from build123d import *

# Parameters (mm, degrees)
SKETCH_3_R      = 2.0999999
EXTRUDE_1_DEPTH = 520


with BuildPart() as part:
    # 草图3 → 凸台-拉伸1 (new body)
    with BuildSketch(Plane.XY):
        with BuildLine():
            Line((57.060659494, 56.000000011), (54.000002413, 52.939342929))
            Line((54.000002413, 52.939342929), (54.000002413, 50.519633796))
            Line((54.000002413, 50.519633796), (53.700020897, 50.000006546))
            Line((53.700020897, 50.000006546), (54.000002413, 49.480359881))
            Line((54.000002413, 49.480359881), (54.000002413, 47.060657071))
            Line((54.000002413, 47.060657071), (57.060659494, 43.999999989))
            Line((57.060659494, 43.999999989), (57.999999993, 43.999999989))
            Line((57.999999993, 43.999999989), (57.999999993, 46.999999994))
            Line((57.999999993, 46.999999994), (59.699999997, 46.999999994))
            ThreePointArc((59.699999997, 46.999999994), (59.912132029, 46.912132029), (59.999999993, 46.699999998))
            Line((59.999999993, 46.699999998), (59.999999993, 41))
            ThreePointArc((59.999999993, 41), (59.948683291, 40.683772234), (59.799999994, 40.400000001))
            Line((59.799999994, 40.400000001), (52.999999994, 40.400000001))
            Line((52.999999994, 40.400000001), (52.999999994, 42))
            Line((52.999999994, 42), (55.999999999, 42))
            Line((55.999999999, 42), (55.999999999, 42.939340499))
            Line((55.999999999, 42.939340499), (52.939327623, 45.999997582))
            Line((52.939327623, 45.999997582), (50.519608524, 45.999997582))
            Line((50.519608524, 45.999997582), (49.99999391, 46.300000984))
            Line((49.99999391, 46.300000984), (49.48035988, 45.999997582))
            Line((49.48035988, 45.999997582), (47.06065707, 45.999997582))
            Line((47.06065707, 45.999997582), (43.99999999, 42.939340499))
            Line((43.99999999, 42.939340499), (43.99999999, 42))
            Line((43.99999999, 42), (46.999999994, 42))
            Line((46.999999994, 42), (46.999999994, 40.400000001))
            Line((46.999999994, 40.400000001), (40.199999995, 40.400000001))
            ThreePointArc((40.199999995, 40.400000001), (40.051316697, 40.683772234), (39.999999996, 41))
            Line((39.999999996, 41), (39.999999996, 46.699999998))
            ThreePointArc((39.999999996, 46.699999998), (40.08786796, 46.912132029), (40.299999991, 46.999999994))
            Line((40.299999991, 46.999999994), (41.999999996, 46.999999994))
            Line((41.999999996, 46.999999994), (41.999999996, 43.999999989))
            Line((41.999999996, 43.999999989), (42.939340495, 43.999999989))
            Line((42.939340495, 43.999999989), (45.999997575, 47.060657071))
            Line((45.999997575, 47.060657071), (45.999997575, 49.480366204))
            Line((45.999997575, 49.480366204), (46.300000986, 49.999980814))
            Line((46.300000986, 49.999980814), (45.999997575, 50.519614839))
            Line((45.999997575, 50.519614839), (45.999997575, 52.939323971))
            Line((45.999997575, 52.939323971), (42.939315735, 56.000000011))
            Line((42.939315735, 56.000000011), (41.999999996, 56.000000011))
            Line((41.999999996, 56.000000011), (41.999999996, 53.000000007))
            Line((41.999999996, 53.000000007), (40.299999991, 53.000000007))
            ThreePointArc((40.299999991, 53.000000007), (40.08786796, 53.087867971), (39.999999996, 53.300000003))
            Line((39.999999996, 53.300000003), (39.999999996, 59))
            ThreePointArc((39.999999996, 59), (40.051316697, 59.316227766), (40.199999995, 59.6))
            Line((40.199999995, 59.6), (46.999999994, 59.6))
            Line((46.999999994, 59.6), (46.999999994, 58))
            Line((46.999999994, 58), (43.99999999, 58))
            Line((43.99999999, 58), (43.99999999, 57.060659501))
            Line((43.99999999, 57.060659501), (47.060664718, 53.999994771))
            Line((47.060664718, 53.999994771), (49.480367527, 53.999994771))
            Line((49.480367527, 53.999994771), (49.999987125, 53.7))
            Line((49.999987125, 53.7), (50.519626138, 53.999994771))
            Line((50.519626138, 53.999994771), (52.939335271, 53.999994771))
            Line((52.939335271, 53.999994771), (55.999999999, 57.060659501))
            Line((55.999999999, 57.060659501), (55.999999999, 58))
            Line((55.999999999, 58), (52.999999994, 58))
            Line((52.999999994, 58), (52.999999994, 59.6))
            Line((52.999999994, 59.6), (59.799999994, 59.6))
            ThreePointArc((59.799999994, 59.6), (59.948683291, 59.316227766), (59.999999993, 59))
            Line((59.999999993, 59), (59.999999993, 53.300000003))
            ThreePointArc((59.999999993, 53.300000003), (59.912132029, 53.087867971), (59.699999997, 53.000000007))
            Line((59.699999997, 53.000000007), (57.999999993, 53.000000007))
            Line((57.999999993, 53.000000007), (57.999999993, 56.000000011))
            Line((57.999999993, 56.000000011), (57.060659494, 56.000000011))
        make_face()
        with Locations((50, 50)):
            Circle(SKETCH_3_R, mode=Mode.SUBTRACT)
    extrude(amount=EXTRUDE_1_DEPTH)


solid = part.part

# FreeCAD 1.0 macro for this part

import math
import FreeCAD as App
import Part
import Sketcher
from FreeCAD import Vector

doc = App.newDocument("Part")
body = doc.addObject("PartDesign::Body", "Body")

# Sketch on XY plane
sketch1 = body.newObject("Sketcher::SketchObject", "Sketch")
sketch1.AttachmentSupport = (doc.getObject("XY_Plane"), [""])
sketch1.MapMode = "FlatFace"
sketch1.addGeometry(Part.LineSegment(Vector(54.000002, 52.939343, 0), Vector(57.060659, 56, 0)), False)
sketch1.addGeometry(Part.LineSegment(Vector(57.060659, 56, 0), Vector(58, 56, 0)), False)
sketch1.addGeometry(Part.LineSegment(Vector(58, 56, 0), Vector(58, 53, 0)), False)
sketch1.addGeometry(Part.LineSegment(Vector(58, 53, 0), Vector(59.7, 53, 0)), False)
sketch1.addGeometry(Part.ArcOfCircle(Part.Circle(Vector(59.7, 53.3, 0), Vector(0, 0, 1), 0.3), math.radians(-90), math.radians(0)), False)
sketch1.addGeometry(Part.LineSegment(Vector(60, 53.3, 0), Vector(60, 59, 0)), False)
sketch1.addGeometry(Part.ArcOfCircle(Part.Circle(Vector(59, 59, 0), Vector(0, 0, 1), 1), math.radians(0), math.radians(36.869897)), False)
sketch1.addGeometry(Part.LineSegment(Vector(59.8, 59.6, 0), Vector(53, 59.6, 0)), False)
sketch1.addGeometry(Part.LineSegment(Vector(53, 59.6, 0), Vector(53, 58, 0)), False)
sketch1.addGeometry(Part.LineSegment(Vector(53, 58, 0), Vector(56, 58, 0)), False)
sketch1.addGeometry(Part.LineSegment(Vector(56, 58, 0), Vector(56, 57.06066, 0)), False)
sketch1.addGeometry(Part.LineSegment(Vector(56, 57.06066, 0), Vector(52.939335, 53.999995, 0)), False)
sketch1.addGeometry(Part.LineSegment(Vector(52.939335, 53.999995, 0), Vector(50.519626, 53.999995, 0)), False)
sketch1.addGeometry(Part.LineSegment(Vector(50.519626, 53.999995, 0), Vector(49.999987, 53.7, 0)), False)
sketch1.addGeometry(Part.LineSegment(Vector(49.999987, 53.7, 0), Vector(49.480368, 53.999995, 0)), False)
sketch1.addGeometry(Part.LineSegment(Vector(49.480368, 53.999995, 0), Vector(47.060665, 53.999995, 0)), False)
sketch1.addGeometry(Part.LineSegment(Vector(47.060665, 53.999995, 0), Vector(44, 57.06066, 0)), False)
sketch1.addGeometry(Part.LineSegment(Vector(44, 57.06066, 0), Vector(44, 58, 0)), False)
sketch1.addGeometry(Part.LineSegment(Vector(44, 58, 0), Vector(47, 58, 0)), False)
sketch1.addGeometry(Part.LineSegment(Vector(47, 58, 0), Vector(47, 59.6, 0)), False)
sketch1.addGeometry(Part.LineSegment(Vector(47, 59.6, 0), Vector(40.2, 59.6, 0)), False)
sketch1.addGeometry(Part.ArcOfCircle(Part.Circle(Vector(41, 59, 0), Vector(0, 0, 1), 1), math.radians(143.130102), math.radians(180)), False)
sketch1.addGeometry(Part.LineSegment(Vector(40, 59, 0), Vector(40, 53.3, 0)), False)
sketch1.addGeometry(Part.ArcOfCircle(Part.Circle(Vector(40.3, 53.3, 0), Vector(0, 0, 1), 0.3), math.radians(180), math.radians(270)), False)
sketch1.addGeometry(Part.LineSegment(Vector(40.3, 53, 0), Vector(42, 53, 0)), False)
sketch1.addGeometry(Part.LineSegment(Vector(42, 53, 0), Vector(42, 56, 0)), False)
sketch1.addGeometry(Part.LineSegment(Vector(42, 56, 0), Vector(42.939316, 56, 0)), False)
sketch1.addGeometry(Part.LineSegment(Vector(42.939316, 56, 0), Vector(45.999998, 52.939324, 0)), False)
sketch1.addGeometry(Part.LineSegment(Vector(45.999998, 52.939324, 0), Vector(45.999998, 50.519615, 0)), False)
sketch1.addGeometry(Part.LineSegment(Vector(45.999998, 50.519615, 0), Vector(46.300001, 49.999981, 0)), False)
sketch1.addGeometry(Part.LineSegment(Vector(46.300001, 49.999981, 0), Vector(45.999998, 49.480366, 0)), False)
sketch1.addGeometry(Part.LineSegment(Vector(45.999998, 49.480366, 0), Vector(45.999998, 47.060657, 0)), False)
sketch1.addGeometry(Part.LineSegment(Vector(45.999998, 47.060657, 0), Vector(42.93934, 44, 0)), False)
sketch1.addGeometry(Part.LineSegment(Vector(42.93934, 44, 0), Vector(42, 44, 0)), False)
sketch1.addGeometry(Part.LineSegment(Vector(42, 44, 0), Vector(42, 47, 0)), False)
sketch1.addGeometry(Part.LineSegment(Vector(42, 47, 0), Vector(40.3, 47, 0)), False)
sketch1.addGeometry(Part.ArcOfCircle(Part.Circle(Vector(40.3, 46.7, 0), Vector(0, 0, 1), 0.3), math.radians(90), math.radians(180)), False)
sketch1.addGeometry(Part.LineSegment(Vector(40, 46.7, 0), Vector(40, 41, 0)), False)
sketch1.addGeometry(Part.ArcOfCircle(Part.Circle(Vector(41, 41, 0), Vector(0, 0, 1), 1), math.radians(180), math.radians(216.869898)), False)
sketch1.addGeometry(Part.LineSegment(Vector(40.2, 40.4, 0), Vector(47, 40.4, 0)), False)
sketch1.addGeometry(Part.LineSegment(Vector(47, 40.4, 0), Vector(47, 42, 0)), False)
sketch1.addGeometry(Part.LineSegment(Vector(47, 42, 0), Vector(44, 42, 0)), False)
sketch1.addGeometry(Part.LineSegment(Vector(44, 42, 0), Vector(44, 42.93934, 0)), False)
sketch1.addGeometry(Part.LineSegment(Vector(44, 42.93934, 0), Vector(47.060657, 45.999998, 0)), False)
sketch1.addGeometry(Part.LineSegment(Vector(47.060657, 45.999998, 0), Vector(49.48036, 45.999998, 0)), False)
sketch1.addGeometry(Part.LineSegment(Vector(49.48036, 45.999998, 0), Vector(49.999994, 46.300001, 0)), False)
sketch1.addGeometry(Part.LineSegment(Vector(49.999994, 46.300001, 0), Vector(50.519609, 45.999998, 0)), False)
sketch1.addGeometry(Part.LineSegment(Vector(50.519609, 45.999998, 0), Vector(52.939328, 45.999998, 0)), False)
sketch1.addGeometry(Part.LineSegment(Vector(52.939328, 45.999998, 0), Vector(56, 42.93934, 0)), False)
sketch1.addGeometry(Part.LineSegment(Vector(56, 42.93934, 0), Vector(56, 42, 0)), False)
sketch1.addGeometry(Part.LineSegment(Vector(56, 42, 0), Vector(53, 42, 0)), False)
sketch1.addGeometry(Part.LineSegment(Vector(53, 42, 0), Vector(53, 40.4, 0)), False)
sketch1.addGeometry(Part.LineSegment(Vector(53, 40.4, 0), Vector(59.8, 40.4, 0)), False)
sketch1.addGeometry(Part.ArcOfCircle(Part.Circle(Vector(59, 41, 0), Vector(0, 0, 1), 1), math.radians(-36.869898), math.radians(0)), False)
sketch1.addGeometry(Part.LineSegment(Vector(60, 41, 0), Vector(60, 46.7, 0)), False)
sketch1.addGeometry(Part.ArcOfCircle(Part.Circle(Vector(59.7, 46.7, 0), Vector(0, 0, 1), 0.3), math.radians(0), math.radians(90)), False)
sketch1.addGeometry(Part.LineSegment(Vector(59.7, 47, 0), Vector(58, 47, 0)), False)
sketch1.addGeometry(Part.LineSegment(Vector(58, 47, 0), Vector(58, 44, 0)), False)
sketch1.addGeometry(Part.LineSegment(Vector(58, 44, 0), Vector(57.060659, 44, 0)), False)
sketch1.addGeometry(Part.LineSegment(Vector(57.060659, 44, 0), Vector(54.000002, 47.060657, 0)), False)
sketch1.addGeometry(Part.LineSegment(Vector(54.000002, 47.060657, 0), Vector(54.000002, 49.48036, 0)), False)
sketch1.addGeometry(Part.LineSegment(Vector(54.000002, 49.48036, 0), Vector(53.700021, 50.000007, 0)), False)
sketch1.addGeometry(Part.LineSegment(Vector(53.700021, 50.000007, 0), Vector(54.000002, 50.519634, 0)), False)
sketch1.addGeometry(Part.LineSegment(Vector(54.000002, 50.519634, 0), Vector(54.000002, 52.939343, 0)), False)
sketch1.addGeometry(Part.Circle(Vector(50, 50, 0), Vector(0, 0, 1), 2.1), False)
sketch1.addConstraint(Sketcher.Constraint("Coincident", 0, 2, 1, 1))
sketch1.addConstraint(Sketcher.Constraint("Coincident", 1, 2, 2, 1))
sketch1.addConstraint(Sketcher.Constraint("Coincident", 2, 2, 3, 1))
sketch1.addConstraint(Sketcher.Constraint("Coincident", 3, 2, 4, 1))
sketch1.addConstraint(Sketcher.Constraint("Coincident", 4, 2, 5, 1))
sketch1.addConstraint(Sketcher.Constraint("Coincident", 5, 2, 6, 1))
sketch1.addConstraint(Sketcher.Constraint("Coincident", 6, 2, 7, 1))
sketch1.addConstraint(Sketcher.Constraint("Coincident", 7, 2, 8, 1))
sketch1.addConstraint(Sketcher.Constraint("Coincident", 8, 2, 9, 1))
sketch1.addConstraint(Sketcher.Constraint("Coincident", 9, 2, 10, 1))
sketch1.addConstraint(Sketcher.Constraint("Coincident", 10, 2, 11, 1))
sketch1.addConstraint(Sketcher.Constraint("Coincident", 11, 2, 12, 1))
sketch1.addConstraint(Sketcher.Constraint("Coincident", 12, 2, 13, 1))
sketch1.addConstraint(Sketcher.Constraint("Coincident", 13, 2, 14, 1))
sketch1.addConstraint(Sketcher.Constraint("Coincident", 14, 2, 15, 1))
sketch1.addConstraint(Sketcher.Constraint("Coincident", 15, 2, 16, 1))
sketch1.addConstraint(Sketcher.Constraint("Coincident", 16, 2, 17, 1))
sketch1.addConstraint(Sketcher.Constraint("Coincident", 17, 2, 18, 1))
sketch1.addConstraint(Sketcher.Constraint("Coincident", 18, 2, 19, 1))
sketch1.addConstraint(Sketcher.Constraint("Coincident", 19, 2, 20, 1))
sketch1.addConstraint(Sketcher.Constraint("Coincident", 20, 2, 21, 1))
sketch1.addConstraint(Sketcher.Constraint("Coincident", 21, 2, 22, 1))
sketch1.addConstraint(Sketcher.Constraint("Coincident", 22, 2, 23, 1))
sketch1.addConstraint(Sketcher.Constraint("Coincident", 23, 2, 24, 1))
sketch1.addConstraint(Sketcher.Constraint("Coincident", 24, 2, 25, 1))
sketch1.addConstraint(Sketcher.Constraint("Coincident", 25, 2, 26, 1))
sketch1.addConstraint(Sketcher.Constraint("Coincident", 26, 2, 27, 1))
sketch1.addConstraint(Sketcher.Constraint("Coincident", 27, 2, 28, 1))
sketch1.addConstraint(Sketcher.Constraint("Coincident", 28, 2, 29, 1))
sketch1.addConstraint(Sketcher.Constraint("Coincident", 29, 2, 30, 1))
sketch1.addConstraint(Sketcher.Constraint("Coincident", 30, 2, 31, 1))
sketch1.addConstraint(Sketcher.Constraint("Coincident", 31, 2, 32, 1))
sketch1.addConstraint(Sketcher.Constraint("Coincident", 32, 2, 33, 1))
sketch1.addConstraint(Sketcher.Constraint("Coincident", 33, 2, 34, 1))
sketch1.addConstraint(Sketcher.Constraint("Coincident", 34, 2, 35, 1))
sketch1.addConstraint(Sketcher.Constraint("Coincident", 35, 2, 36, 1))
sketch1.addConstraint(Sketcher.Constraint("Coincident", 36, 2, 37, 1))
sketch1.addConstraint(Sketcher.Constraint("Coincident", 37, 2, 38, 1))
sketch1.addConstraint(Sketcher.Constraint("Coincident", 38, 2, 39, 1))
sketch1.addConstraint(Sketcher.Constraint("Coincident", 39, 2, 40, 1))
sketch1.addConstraint(Sketcher.Constraint("Coincident", 40, 2, 41, 1))
sketch1.addConstraint(Sketcher.Constraint("Coincident", 41, 2, 42, 1))
sketch1.addConstraint(Sketcher.Constraint("Coincident", 42, 2, 43, 1))
sketch1.addConstraint(Sketcher.Constraint("Coincident", 43, 2, 44, 1))
sketch1.addConstraint(Sketcher.Constraint("Coincident", 44, 2, 45, 1))
sketch1.addConstraint(Sketcher.Constraint("Coincident", 45, 2, 46, 1))
sketch1.addConstraint(Sketcher.Constraint("Coincident", 46, 2, 47, 1))
sketch1.addConstraint(Sketcher.Constraint("Coincident", 47, 2, 48, 1))
sketch1.addConstraint(Sketcher.Constraint("Coincident", 48, 2, 49, 1))
sketch1.addConstraint(Sketcher.Constraint("Coincident", 49, 2, 50, 1))
sketch1.addConstraint(Sketcher.Constraint("Coincident", 50, 2, 51, 1))
sketch1.addConstraint(Sketcher.Constraint("Coincident", 51, 2, 52, 1))
sketch1.addConstraint(Sketcher.Constraint("Coincident", 52, 2, 53, 1))
sketch1.addConstraint(Sketcher.Constraint("Coincident", 53, 2, 54, 1))
sketch1.addConstraint(Sketcher.Constraint("Coincident", 54, 2, 55, 1))
sketch1.addConstraint(Sketcher.Constraint("Coincident", 55, 2, 56, 1))
sketch1.addConstraint(Sketcher.Constraint("Coincident", 56, 2, 57, 1))
sketch1.addConstraint(Sketcher.Constraint("Coincident", 57, 2, 58, 1))
sketch1.addConstraint(Sketcher.Constraint("Coincident", 58, 2, 59, 1))
sketch1.addConstraint(Sketcher.Constraint("Coincident", 59, 2, 60, 1))
sketch1.addConstraint(Sketcher.Constraint("Coincident", 60, 2, 61, 1))
sketch1.addConstraint(Sketcher.Constraint("Coincident", 61, 2, 62, 1))
sketch1.addConstraint(Sketcher.Constraint("Coincident", 62, 2, 63, 1))
sketch1.addConstraint(Sketcher.Constraint("Coincident", 63, 2, 0, 1))
sketch1.addConstraint(Sketcher.Constraint("Horizontal", 1))
sketch1.addConstraint(Sketcher.Constraint("Vertical", 2))
sketch1.addConstraint(Sketcher.Constraint("Horizontal", 3))
sketch1.addConstraint(Sketcher.Constraint("Vertical", 5))
sketch1.addConstraint(Sketcher.Constraint("Horizontal", 7))
sketch1.addConstraint(Sketcher.Constraint("Vertical", 8))
sketch1.addConstraint(Sketcher.Constraint("Horizontal", 9))
sketch1.addConstraint(Sketcher.Constraint("Vertical", 10))
sketch1.addConstraint(Sketcher.Constraint("Horizontal", 12))
sketch1.addConstraint(Sketcher.Constraint("Horizontal", 15))
sketch1.addConstraint(Sketcher.Constraint("Vertical", 17))
sketch1.addConstraint(Sketcher.Constraint("Horizontal", 18))
sketch1.addConstraint(Sketcher.Constraint("Vertical", 19))
sketch1.addConstraint(Sketcher.Constraint("Horizontal", 20))
sketch1.addConstraint(Sketcher.Constraint("Vertical", 22))
sketch1.addConstraint(Sketcher.Constraint("Horizontal", 24))
sketch1.addConstraint(Sketcher.Constraint("Vertical", 25))
sketch1.addConstraint(Sketcher.Constraint("Horizontal", 26))
sketch1.addConstraint(Sketcher.Constraint("Vertical", 28))
sketch1.addConstraint(Sketcher.Constraint("Vertical", 31))
sketch1.addConstraint(Sketcher.Constraint("Horizontal", 33))
sketch1.addConstraint(Sketcher.Constraint("Vertical", 34))
sketch1.addConstraint(Sketcher.Constraint("Horizontal", 35))
sketch1.addConstraint(Sketcher.Constraint("Vertical", 37))
sketch1.addConstraint(Sketcher.Constraint("Horizontal", 39))
sketch1.addConstraint(Sketcher.Constraint("Vertical", 40))
sketch1.addConstraint(Sketcher.Constraint("Horizontal", 41))
sketch1.addConstraint(Sketcher.Constraint("Vertical", 42))
sketch1.addConstraint(Sketcher.Constraint("Horizontal", 44))
sketch1.addConstraint(Sketcher.Constraint("Horizontal", 47))
sketch1.addConstraint(Sketcher.Constraint("Vertical", 49))
sketch1.addConstraint(Sketcher.Constraint("Horizontal", 50))
sketch1.addConstraint(Sketcher.Constraint("Vertical", 51))
sketch1.addConstraint(Sketcher.Constraint("Horizontal", 52))
sketch1.addConstraint(Sketcher.Constraint("Vertical", 54))
sketch1.addConstraint(Sketcher.Constraint("Horizontal", 56))
sketch1.addConstraint(Sketcher.Constraint("Vertical", 57))
sketch1.addConstraint(Sketcher.Constraint("Horizontal", 58))
sketch1.addConstraint(Sketcher.Constraint("Vertical", 60))
sketch1.addConstraint(Sketcher.Constraint("Vertical", 63))
sketch1.addConstraint(Sketcher.Constraint("Radius", 6, 1.0))
sketch1.addConstraint(Sketcher.Constraint("Radius", 21, 1.0))
sketch1.addConstraint(Sketcher.Constraint("Radius", 38, 1.0))
sketch1.addConstraint(Sketcher.Constraint("Radius", 53, 1.0))
sketch1.addConstraint(Sketcher.Constraint("Diameter", 64, 4.2))
sketch1.addConstraint(Sketcher.Constraint("Radius", 4, 0.3))
sketch1.addConstraint(Sketcher.Constraint("Radius", 23, 0.3))
sketch1.addConstraint(Sketcher.Constraint("Radius", 36, 0.3))
sketch1.addConstraint(Sketcher.Constraint("Radius", 55, 0.3))
sketch1.addConstraint(Sketcher.Constraint("DistanceX", 9, 1, 9, 2, 3.0))
sketch1.addConstraint(Sketcher.Constraint("DistanceX", 18, 1, 18, 2, 3.0))
sketch1.addConstraint(Sketcher.Constraint("DistanceX", 41, 2, 41, 1, 3.0))
sketch1.addConstraint(Sketcher.Constraint("DistanceX", 50, 2, 50, 1, 3.0))
sketch1.addConstraint(Sketcher.Constraint("DistanceY", 2, 2, 2, 1, 3.0))
sketch1.addConstraint(Sketcher.Constraint("DistanceY", 25, 1, 25, 2, 3.0))
sketch1.addConstraint(Sketcher.Constraint("DistanceY", 34, 1, 34, 2, 3.0))
sketch1.addConstraint(Sketcher.Constraint("DistanceY", 57, 2, 57, 1, 3.0))
sketch1.addConstraint(Sketcher.Constraint("DistanceX", 3, 1, 3, 2, 1.7))
sketch1.addConstraint(Sketcher.Constraint("DistanceX", 7, 2, 7, 1, 6.8))
sketch1.addConstraint(Sketcher.Constraint("DistanceX", 20, 2, 20, 1, 6.8))
sketch1.addConstraint(Sketcher.Constraint("DistanceX", 24, 1, 24, 2, 1.7))
sketch1.addConstraint(Sketcher.Constraint("DistanceX", 35, 2, 35, 1, 1.7))
sketch1.addConstraint(Sketcher.Constraint("DistanceX", 39, 1, 39, 2, 6.8))
sketch1.addConstraint(Sketcher.Constraint("DistanceX", 52, 1, 52, 2, 6.8))
sketch1.addConstraint(Sketcher.Constraint("DistanceX", 56, 2, 56, 1, 1.7))
sketch1.addConstraint(Sketcher.Constraint("DistanceY", 5, 1, 5, 2, 5.7))
sketch1.addConstraint(Sketcher.Constraint("DistanceY", 8, 2, 8, 1, 1.6))
sketch1.addConstraint(Sketcher.Constraint("DistanceY", 19, 1, 19, 2, 1.6))
sketch1.addConstraint(Sketcher.Constraint("DistanceY", 22, 2, 22, 1, 5.7))
sketch1.addConstraint(Sketcher.Constraint("DistanceY", 37, 2, 37, 1, 5.7))
sketch1.addConstraint(Sketcher.Constraint("DistanceY", 40, 1, 40, 2, 1.6))
sketch1.addConstraint(Sketcher.Constraint("DistanceY", 51, 2, 51, 1, 1.6))
sketch1.addConstraint(Sketcher.Constraint("DistanceY", 54, 1, 54, 2, 5.7))
sketch1.addConstraint(Sketcher.Constraint("DistanceX", -1, 1, 6, 3, 59.0))
sketch1.addConstraint(Sketcher.Constraint("DistanceY", -1, 1, 6, 3, 59.0))
sketch1.addConstraint(Sketcher.Constraint("DistanceX", -1, 1, 21, 3, 41.0))
sketch1.addConstraint(Sketcher.Constraint("DistanceY", -1, 1, 21, 3, 59.0))
sketch1.addConstraint(Sketcher.Constraint("DistanceX", -1, 1, 38, 3, 41.0))
sketch1.addConstraint(Sketcher.Constraint("DistanceY", -1, 1, 38, 3, 41.0))
sketch1.addConstraint(Sketcher.Constraint("DistanceX", -1, 1, 53, 3, 59.0))
sketch1.addConstraint(Sketcher.Constraint("DistanceY", -1, 1, 53, 3, 41.0))
sketch1.addConstraint(Sketcher.Constraint("DistanceX", -1, 1, 64, 3, 50.0))
sketch1.addConstraint(Sketcher.Constraint("DistanceY", -1, 1, 64, 3, 50.0))
sketch1.addConstraint(Sketcher.Constraint("DistanceY", -1, 1, 0, 2, 56.0))
sketch1.addConstraint(Sketcher.Constraint("DistanceX", -1, 1, 1, 2, 58.0))
sketch1.addConstraint(Sketcher.Constraint("DistanceY", -1, 1, 5, 2, 59.0))
sketch1.addConstraint(Sketcher.Constraint("DistanceX", -1, 1, 7, 2, 53.0))
sketch1.addConstraint(Sketcher.Constraint("DistanceX", -1, 1, 16, 2, 44.0))
sketch1.addConstraint(Sketcher.Constraint("DistanceY", -1, 1, 21, 2, 59.0))
sketch1.addConstraint(Sketcher.Constraint("DistanceY", -1, 1, 23, 2, 53.0))
sketch1.addConstraint(Sketcher.Constraint("DistanceX", -1, 1, 24, 2, 42.0))
sketch1.addConstraint(Sketcher.Constraint("DistanceY", -1, 1, 32, 2, 44.0))
sketch1.addConstraint(Sketcher.Constraint("DistanceX", -1, 1, 33, 2, 42.0))
sketch1.addConstraint(Sketcher.Constraint("DistanceY", -1, 1, 37, 2, 41.0))
sketch1.addConstraint(Sketcher.Constraint("DistanceX", -1, 1, 39, 2, 47.0))
sketch1.addConstraint(Sketcher.Constraint("DistanceX", -1, 1, 48, 2, 56.0))
sketch1.addConstraint(Sketcher.Constraint("DistanceY", -1, 1, 53, 2, 41.0))
sketch1.addConstraint(Sketcher.Constraint("DistanceY", -1, 1, 55, 2, 47.0))
sketch1.addConstraint(Sketcher.Constraint("DistanceX", -1, 1, 56, 2, 58.0))
sketch1.addConstraint(Sketcher.Constraint("Distance", 14, 0.600001))
sketch1.addConstraint(Sketcher.Constraint("Distance", 30, 0.600001))
sketch1.addConstraint(Sketcher.Constraint("Distance", 46, 0.600001))
sketch1.addConstraint(Sketcher.Constraint("Distance", 62, 0.600001))
sketch1.addConstraint(Sketcher.Constraint("DistanceY", -1, 1, 13, 2, 53.7))
sketch1.addConstraint(Sketcher.Constraint("DistanceX", -1, 1, 29, 2, 46.300001))
sketch1.addConstraint(Sketcher.Constraint("DistanceY", -1, 1, 45, 2, 46.300001))
sketch1.addConstraint(Sketcher.Constraint("DistanceX", 1, 1, 1, 2, 0.93934))
sketch1.addConstraint(Sketcher.Constraint("DistanceX", 12, 2, 12, 1, 2.419709))
sketch1.addConstraint(Sketcher.Constraint("DistanceX", 33, 2, 33, 1, 0.93934))
sketch1.addConstraint(Sketcher.Constraint("DistanceX", 47, 1, 47, 2, 2.419719))
sketch1.addConstraint(Sketcher.Constraint("DistanceX", 58, 2, 58, 1, 0.93934))
sketch1.addConstraint(Sketcher.Constraint("DistanceY", 10, 2, 10, 1, 0.93934))
sketch1.addConstraint(Sketcher.Constraint("DistanceY", 17, 1, 17, 2, 0.93934))
sketch1.addConstraint(Sketcher.Constraint("DistanceY", 28, 2, 28, 1, 2.419709))
sketch1.addConstraint(Sketcher.Constraint("DistanceY", 31, 2, 31, 1, 2.419709))
sketch1.addConstraint(Sketcher.Constraint("DistanceY", 42, 1, 42, 2, 0.93934))
sketch1.addConstraint(Sketcher.Constraint("DistanceY", 49, 2, 49, 1, 0.93934))
sketch1.addConstraint(Sketcher.Constraint("DistanceY", 63, 1, 63, 2, 2.419709))
sketch1.addConstraint(Sketcher.Constraint("DistanceX", 15, 2, 15, 1, 2.419703))
sketch1.addConstraint(Sketcher.Constraint("DistanceX", 26, 1, 26, 2, 0.939316))
sketch1.addConstraint(Sketcher.Constraint("DistanceX", 44, 1, 44, 2, 2.419703))
sketch1.addConstraint(Sketcher.Constraint("DistanceY", 60, 1, 60, 2, 2.419703))
sketch1.addConstraint(Sketcher.Constraint("DistanceY", -1, 1, 29, 2, 49.999981))
sketch1.addConstraint(Sketcher.Constraint("DistanceX", -1, 1, 44, 2, 49.48036))
sketch1.addConstraint(Sketcher.Constraint("DistanceX", -1, 1, 46, 2, 50.519609))
sketch1.addConstraint(Sketcher.Constraint("DistanceY", -1, 1, 60, 2, 49.48036))
sketch1.addConstraint(Sketcher.Constraint("DistanceX", -1, 1, 61, 2, 53.700021))
sketch1.addConstraint(Sketcher.Constraint("Distance", 0, 4.328423))
sketch1.addConstraint(Sketcher.Constraint("Distance", 11, 4.328434))
sketch1.addConstraint(Sketcher.Constraint("Distance", 13, 0.600018))
sketch1.addConstraint(Sketcher.Constraint("Distance", 16, 4.328434))
sketch1.addConstraint(Sketcher.Constraint("Distance", 27, 4.328454))
sketch1.addConstraint(Sketcher.Constraint("Distance", 29, 0.600018))
sketch1.addConstraint(Sketcher.Constraint("Distance", 32, 4.328423))
sketch1.addConstraint(Sketcher.Constraint("Distance", 43, 4.328423))
sketch1.addConstraint(Sketcher.Constraint("Distance", 45, 0.600018))
sketch1.addConstraint(Sketcher.Constraint("Distance", 59, 4.328423))
sketch1.addConstraint(Sketcher.Constraint("Distance", 61, 0.600018))
sketch1.addConstraint(Sketcher.Constraint("DistanceX", -1, 1, 11, 2, 52.939335))
pad1 = body.newObject("PartDesign::Pad", "Pad")
pad1.Profile = sketch1
pad1.Length = 520

doc.recompute()
